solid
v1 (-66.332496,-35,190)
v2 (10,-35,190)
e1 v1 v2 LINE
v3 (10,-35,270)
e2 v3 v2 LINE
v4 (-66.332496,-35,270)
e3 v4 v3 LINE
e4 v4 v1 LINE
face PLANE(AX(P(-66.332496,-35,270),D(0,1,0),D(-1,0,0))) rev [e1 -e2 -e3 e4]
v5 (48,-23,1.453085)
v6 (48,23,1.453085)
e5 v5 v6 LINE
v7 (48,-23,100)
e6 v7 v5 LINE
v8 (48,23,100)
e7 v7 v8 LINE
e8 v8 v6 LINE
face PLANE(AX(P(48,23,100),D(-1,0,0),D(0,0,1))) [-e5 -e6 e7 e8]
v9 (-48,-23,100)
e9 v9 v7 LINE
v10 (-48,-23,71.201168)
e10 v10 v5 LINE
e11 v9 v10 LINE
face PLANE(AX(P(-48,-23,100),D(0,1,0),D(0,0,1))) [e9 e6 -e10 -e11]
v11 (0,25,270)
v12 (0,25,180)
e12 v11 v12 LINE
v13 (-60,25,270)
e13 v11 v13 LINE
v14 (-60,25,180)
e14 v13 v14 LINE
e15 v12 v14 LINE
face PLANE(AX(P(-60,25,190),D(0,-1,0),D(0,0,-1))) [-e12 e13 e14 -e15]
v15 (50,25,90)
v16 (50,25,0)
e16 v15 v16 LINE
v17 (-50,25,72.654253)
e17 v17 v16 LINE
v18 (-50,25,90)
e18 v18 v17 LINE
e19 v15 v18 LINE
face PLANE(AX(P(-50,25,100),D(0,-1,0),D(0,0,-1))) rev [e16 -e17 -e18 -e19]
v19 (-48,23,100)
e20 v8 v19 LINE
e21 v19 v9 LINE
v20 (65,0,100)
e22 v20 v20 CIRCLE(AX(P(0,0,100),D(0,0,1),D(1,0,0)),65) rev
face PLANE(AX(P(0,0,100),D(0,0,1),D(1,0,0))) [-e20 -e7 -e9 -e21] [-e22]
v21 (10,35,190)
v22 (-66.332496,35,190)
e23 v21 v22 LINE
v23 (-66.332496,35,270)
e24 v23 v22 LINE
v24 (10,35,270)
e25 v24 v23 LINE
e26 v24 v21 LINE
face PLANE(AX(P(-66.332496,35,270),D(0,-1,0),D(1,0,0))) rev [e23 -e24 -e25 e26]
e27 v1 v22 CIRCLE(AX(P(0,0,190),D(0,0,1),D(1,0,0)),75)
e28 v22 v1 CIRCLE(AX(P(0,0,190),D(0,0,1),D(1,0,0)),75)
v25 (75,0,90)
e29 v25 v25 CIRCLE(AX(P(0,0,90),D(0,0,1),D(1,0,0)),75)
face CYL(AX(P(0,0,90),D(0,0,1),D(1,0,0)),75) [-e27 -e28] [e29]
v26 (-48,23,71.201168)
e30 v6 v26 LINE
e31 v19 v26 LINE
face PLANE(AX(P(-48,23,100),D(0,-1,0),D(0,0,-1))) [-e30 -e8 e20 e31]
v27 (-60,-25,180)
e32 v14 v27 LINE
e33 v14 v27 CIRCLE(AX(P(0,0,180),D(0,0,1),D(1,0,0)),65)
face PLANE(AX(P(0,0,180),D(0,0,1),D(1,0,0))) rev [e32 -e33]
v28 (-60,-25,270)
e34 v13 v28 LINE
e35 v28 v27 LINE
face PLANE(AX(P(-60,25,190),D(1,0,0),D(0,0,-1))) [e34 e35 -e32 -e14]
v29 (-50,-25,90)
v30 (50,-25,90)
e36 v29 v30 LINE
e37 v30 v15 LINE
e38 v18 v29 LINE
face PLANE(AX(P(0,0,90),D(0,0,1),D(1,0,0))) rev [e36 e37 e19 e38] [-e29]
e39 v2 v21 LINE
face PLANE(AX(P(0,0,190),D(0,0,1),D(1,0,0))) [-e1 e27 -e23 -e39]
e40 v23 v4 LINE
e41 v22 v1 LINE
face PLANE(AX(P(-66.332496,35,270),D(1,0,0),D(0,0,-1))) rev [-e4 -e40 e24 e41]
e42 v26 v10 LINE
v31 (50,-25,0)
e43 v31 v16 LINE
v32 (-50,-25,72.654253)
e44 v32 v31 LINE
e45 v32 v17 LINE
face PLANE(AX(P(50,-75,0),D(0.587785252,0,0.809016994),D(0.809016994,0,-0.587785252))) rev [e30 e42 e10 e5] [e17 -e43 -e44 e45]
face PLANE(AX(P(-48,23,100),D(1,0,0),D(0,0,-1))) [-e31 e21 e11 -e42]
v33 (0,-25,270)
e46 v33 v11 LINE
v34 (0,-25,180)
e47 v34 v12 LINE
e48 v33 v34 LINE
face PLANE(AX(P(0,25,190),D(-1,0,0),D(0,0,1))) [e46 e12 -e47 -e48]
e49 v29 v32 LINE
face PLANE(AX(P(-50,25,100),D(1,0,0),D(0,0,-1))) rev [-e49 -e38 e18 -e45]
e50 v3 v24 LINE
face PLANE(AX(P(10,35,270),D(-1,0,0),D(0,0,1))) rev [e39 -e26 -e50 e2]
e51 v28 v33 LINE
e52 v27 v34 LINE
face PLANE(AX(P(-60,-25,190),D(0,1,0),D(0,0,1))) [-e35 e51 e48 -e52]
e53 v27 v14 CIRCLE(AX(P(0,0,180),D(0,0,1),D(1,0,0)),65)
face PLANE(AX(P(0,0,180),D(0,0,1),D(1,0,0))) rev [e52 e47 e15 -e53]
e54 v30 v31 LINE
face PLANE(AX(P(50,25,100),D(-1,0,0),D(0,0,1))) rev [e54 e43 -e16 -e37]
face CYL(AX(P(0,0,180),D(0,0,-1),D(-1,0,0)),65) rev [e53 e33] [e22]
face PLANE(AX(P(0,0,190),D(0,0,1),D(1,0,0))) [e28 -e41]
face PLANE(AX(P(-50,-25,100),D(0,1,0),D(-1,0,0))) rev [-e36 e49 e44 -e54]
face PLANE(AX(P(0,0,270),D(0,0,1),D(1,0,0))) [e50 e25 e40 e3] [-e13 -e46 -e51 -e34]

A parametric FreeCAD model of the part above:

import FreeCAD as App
import Part
import Sketcher
Q = App.Units.Quantity


def add_polygon(sketch, points):
    """Adds a closed chain of lines whose ends are joined by coincident constraints."""
    first, n = sketch.GeometryCount, len(points)
    for a, b in zip(points, points[1:] + points[:1]):
        sketch.addGeometry(Part.LineSegment(App.Vector(*a, 0), App.Vector(*b, 0)), False)
    for i in range(n):
        sketch.addConstraint(Sketcher.Constraint("Coincident", first + i, 2, first + (i + 1) % n, 1))

doc = App.newDocument("Part")
body = doc.addObject("PartDesign::Body", "Body")

# Sketch on XY plane
sketch1 = doc.addObject("Sketcher::SketchObject", "Sketch")
body.addObject(sketch1)
sketch1.AttachmentSupport = (doc.XY_Plane, [""])
sketch1.MapMode = "FlatFace"
add_polygon(sketch1, [(-50, 25), (-50, -25), (50, -25), (50, 25)])  # lines 0-3
add_polygon(sketch1, [(48, -23), (-48, -23), (-48, 23), (48, 23)])  # lines 4-7
sketch1.addConstraint(Sketcher.Constraint("Vertical", 0))
sketch1.addConstraint(Sketcher.Constraint("Horizontal", 1))
sketch1.addConstraint(Sketcher.Constraint("Vertical", 2))
sketch1.addConstraint(Sketcher.Constraint("Horizontal", 3))
sketch1.addConstraint(Sketcher.Constraint("Horizontal", 4))
sketch1.addConstraint(Sketcher.Constraint("Vertical", 5))
sketch1.addConstraint(Sketcher.Constraint("Horizontal", 6))
sketch1.addConstraint(Sketcher.Constraint("Vertical", 7))
sketch1.addConstraint(Sketcher.Constraint("Symmetric", 0, 2, 2, 2, -1, 1))
sketch1.addConstraint(Sketcher.Constraint("Symmetric", 4, 2, 6, 2, -1, 1))
sketch1.addConstraint(Sketcher.Constraint("DistanceX", 1, 1, 1, 2, Q("100 mm")))
sketch1.addConstraint(Sketcher.Constraint("DistanceX", 4, 2, 4, 1, Q("96 mm")))
sketch1.addConstraint(Sketcher.Constraint("DistanceY", 0, 2, 0, 1, Q("50 mm")))
sketch1.addConstraint(Sketcher.Constraint("DistanceY", 5, 1, 5, 2, Q("46 mm")))
pad1 = doc.addObject("PartDesign::Pad", "Pad")
body.addObject(pad1)
pad1.Profile = sketch1
pad1.Length = 100

# Sketch on XZ plane
sketch2 = doc.addObject("Sketcher::SketchObject", "Sketch001")
body.addObject(sketch2)
sketch2.AttachmentSupport = (doc.XZ_Plane, [""])
sketch2.MapMode = "FlatFace"
sketch2.AttachmentOffset = App.Placement(App.Vector(0, 0, -25), App.Rotation())
add_polygon(sketch2, [(50, 0), (-50, 0), (-50, 72.654253)])  # lines 0-2
sketch2.addConstraint(Sketcher.Constraint("Horizontal", 0))
sketch2.addConstraint(Sketcher.Constraint("Vertical", 1))
sketch2.addConstraint(Sketcher.Constraint("Symmetric", 0, 2, 2, 2, -1, 1))
sketch2.addConstraint(Sketcher.Constraint("DistanceX", 0, 2, 0, 1, Q("100 mm")))
sketch2.addConstraint(Sketcher.Constraint("Angle", 2, Q("-36 deg")))
pocket1 = doc.addObject("PartDesign::Pocket", "Pocket")
body.addObject(pocket1)
pocket1.Profile = sketch2
pocket1.Length = 100
pocket1.Reversed = True

# Sketch on XY plane
sketch3 = doc.addObject("Sketcher::SketchObject", "Sketch002")
body.addObject(sketch3)
sketch3.AttachmentSupport = (doc.XY_Plane, [""])
sketch3.MapMode = "FlatFace"
sketch3.AttachmentOffset = App.Placement(App.Vector(0, 0, 100), App.Rotation())
sketch3.addGeometry(Part.Circle(App.Vector(0, 0, 0), App.Vector(0, 0, 1), 75), False)  # 0
add_polygon(sketch3, [(50, -25), (-50, -25), (-50, 25), (50, 25)])  # lines 1-4
sketch3.addConstraint(Sketcher.Constraint("Horizontal", 1))
sketch3.addConstraint(Sketcher.Constraint("Vertical", 2))
sketch3.addConstraint(Sketcher.Constraint("Horizontal", 3))
sketch3.addConstraint(Sketcher.Constraint("Vertical", 4))
sketch3.addConstraint(Sketcher.Constraint("Coincident", 0, 3, -1, 1))
sketch3.addConstraint(Sketcher.Constraint("Symmetric", 1, 2, 3, 2, -1, 1))
sketch3.addConstraint(Sketcher.Constraint("Diameter", 0, Q("150 mm")))
sketch3.addConstraint(Sketcher.Constraint("DistanceX", 1, 2, 1, 1, Q("100 mm")))
sketch3.addConstraint(Sketcher.Constraint("DistanceY", 2, 1, 2, 2, Q("50 mm")))
pad2 = doc.addObject("PartDesign::Pad", "Pad001")
body.addObject(pad2)
pad2.Profile = sketch3
pad2.Length = 10
pad2.Reversed = True

# Sketch on XY plane
sketch4 = doc.addObject("Sketcher::SketchObject", "Sketch003")
body.addObject(sketch4)
sketch4.AttachmentSupport = (doc.XY_Plane, [""])
sketch4.MapMode = "FlatFace"
sketch4.AttachmentOffset = App.Placement(App.Vector(0, 0, 180), App.Rotation())
sketch4.addGeometry(Part.Circle(App.Vector(0, 0, 0), App.Vector(0, 0, 1), 75), False)
sketch4.addGeometry(Part.Circle(App.Vector(0, 0, 0), App.Vector(0, 0, 1), 65), False)
sketch4.addConstraint(Sketcher.Constraint("Coincident", 0, 3, -1, 1))
sketch4.addConstraint(Sketcher.Constraint("Coincident", 1, 3, -1, 1))
sketch4.addConstraint(Sketcher.Constraint("Diameter", 0, Q("150 mm")))
sketch4.addConstraint(Sketcher.Constraint("Diameter", 1, Q("130 mm")))
pad3 = doc.addObject("PartDesign::Pad", "Pad002")
body.addObject(pad3)
pad3.Profile = sketch4
pad3.Length = 80
pad3.Reversed = True

# Sketch on XY plane
sketch5 = doc.addObject("Sketcher::SketchObject", "Sketch004")
body.addObject(sketch5)
sketch5.AttachmentSupport = (doc.XY_Plane, [""])
sketch5.MapMode = "FlatFace"
sketch5.AttachmentOffset = App.Placement(App.Vector(0, 0, 190), App.Rotation())
sketch5.addGeometry(Part.Circle(App.Vector(0, 0, 0), App.Vector(0, 0, 1), 75), False)  # 0
add_polygon(sketch5, [(0, -25), (-60, -25), (-60, 25), (0, 25)])  # lines 1-4
sketch5.addConstraint(Sketcher.Constraint("Horizontal", 1))
sketch5.addConstraint(Sketcher.Constraint("Vertical", 2))
sketch5.addConstraint(Sketcher.Constraint("Horizontal", 3))
sketch5.addConstraint(Sketcher.Constraint("Vertical", 4))
sketch5.addConstraint(Sketcher.Constraint("Coincident", 0, 3, -1, 1))
sketch5.addConstraint(Sketcher.Constraint("Symmetric", 3, 2, 4, 2, -1, 1))
sketch5.addConstraint(Sketcher.Constraint("Diameter", 0, Q("150 mm")))
sketch5.addConstraint(Sketcher.Constraint("DistanceX", 1, 2, 1, 1, Q("60 mm")))
sketch5.addConstraint(Sketcher.Constraint("DistanceY", 2, 1, 2, 2, Q("50 mm")))
pad4 = doc.addObject("PartDesign::Pad", "Pad003")
body.addObject(pad4)
pad4.Profile = sketch5
pad4.Length = 10
pad4.Reversed = True

# Sketch on XY plane
sketch6 = doc.addObject("Sketcher::SketchObject", "Sketch005")
body.addObject(sketch6)
sketch6.AttachmentSupport = (doc.XY_Plane, [""])
sketch6.MapMode = "FlatFace"
sketch6.AttachmentOffset = App.Placement(App.Vector(0, 0, 190), App.Rotation())
add_polygon(sketch6, [(-66.332496, 35), (-66.332496, -35), (10, -35), (10, 35)])  # lines 0-3
add_polygon(sketch6, [(0, -25), (-60, -25), (-60, 25), (0, 25)])  # lines 4-7
sketch6.addConstraint(Sketcher.Constraint("Vertical", 0))
sketch6.addConstraint(Sketcher.Constraint("Horizontal", 1))
sketch6.addConstraint(Sketcher.Constraint("Vertical", 2))
sketch6.addConstraint(Sketcher.Constraint("Horizontal", 3))
sketch6.addConstraint(Sketcher.Constraint("Horizontal", 4))
sketch6.addConstraint(Sketcher.Constraint("Vertical", 5))
sketch6.addConstraint(Sketcher.Constraint("Horizontal", 6))
sketch6.addConstraint(Sketcher.Constraint("Vertical", 7))
sketch6.addConstraint(Sketcher.Constraint("Symmetric", 6, 2, 7, 2, -1, 1))
sketch6.addConstraint(Sketcher.Constraint("DistanceX", 4, 2, 4, 1, Q("60 mm")))
sketch6.addConstraint(Sketcher.Constraint("DistanceY", 0, 2, 0, 1, Q("70 mm")))
sketch6.addConstraint(Sketcher.Constraint("DistanceY", 5, 1, 5, 2, Q("50 mm")))
sketch6.addConstraint(Sketcher.Constraint("DistanceY", 0, 2, -1, 1, Q("35 mm")))
sketch6.addConstraint(Sketcher.Constraint("DistanceX", -1, 1, 1, 2, Q("10 mm")))
sketch6.addConstraint(Sketcher.Constraint("DistanceX", 1, 1, 1, 2, Q("76.332496 mm")))
pad5 = doc.addObject("PartDesign::Pad", "Pad004")
body.addObject(pad5)
pad5.Profile = sketch6
pad5.Length = 80

doc.recompute()
